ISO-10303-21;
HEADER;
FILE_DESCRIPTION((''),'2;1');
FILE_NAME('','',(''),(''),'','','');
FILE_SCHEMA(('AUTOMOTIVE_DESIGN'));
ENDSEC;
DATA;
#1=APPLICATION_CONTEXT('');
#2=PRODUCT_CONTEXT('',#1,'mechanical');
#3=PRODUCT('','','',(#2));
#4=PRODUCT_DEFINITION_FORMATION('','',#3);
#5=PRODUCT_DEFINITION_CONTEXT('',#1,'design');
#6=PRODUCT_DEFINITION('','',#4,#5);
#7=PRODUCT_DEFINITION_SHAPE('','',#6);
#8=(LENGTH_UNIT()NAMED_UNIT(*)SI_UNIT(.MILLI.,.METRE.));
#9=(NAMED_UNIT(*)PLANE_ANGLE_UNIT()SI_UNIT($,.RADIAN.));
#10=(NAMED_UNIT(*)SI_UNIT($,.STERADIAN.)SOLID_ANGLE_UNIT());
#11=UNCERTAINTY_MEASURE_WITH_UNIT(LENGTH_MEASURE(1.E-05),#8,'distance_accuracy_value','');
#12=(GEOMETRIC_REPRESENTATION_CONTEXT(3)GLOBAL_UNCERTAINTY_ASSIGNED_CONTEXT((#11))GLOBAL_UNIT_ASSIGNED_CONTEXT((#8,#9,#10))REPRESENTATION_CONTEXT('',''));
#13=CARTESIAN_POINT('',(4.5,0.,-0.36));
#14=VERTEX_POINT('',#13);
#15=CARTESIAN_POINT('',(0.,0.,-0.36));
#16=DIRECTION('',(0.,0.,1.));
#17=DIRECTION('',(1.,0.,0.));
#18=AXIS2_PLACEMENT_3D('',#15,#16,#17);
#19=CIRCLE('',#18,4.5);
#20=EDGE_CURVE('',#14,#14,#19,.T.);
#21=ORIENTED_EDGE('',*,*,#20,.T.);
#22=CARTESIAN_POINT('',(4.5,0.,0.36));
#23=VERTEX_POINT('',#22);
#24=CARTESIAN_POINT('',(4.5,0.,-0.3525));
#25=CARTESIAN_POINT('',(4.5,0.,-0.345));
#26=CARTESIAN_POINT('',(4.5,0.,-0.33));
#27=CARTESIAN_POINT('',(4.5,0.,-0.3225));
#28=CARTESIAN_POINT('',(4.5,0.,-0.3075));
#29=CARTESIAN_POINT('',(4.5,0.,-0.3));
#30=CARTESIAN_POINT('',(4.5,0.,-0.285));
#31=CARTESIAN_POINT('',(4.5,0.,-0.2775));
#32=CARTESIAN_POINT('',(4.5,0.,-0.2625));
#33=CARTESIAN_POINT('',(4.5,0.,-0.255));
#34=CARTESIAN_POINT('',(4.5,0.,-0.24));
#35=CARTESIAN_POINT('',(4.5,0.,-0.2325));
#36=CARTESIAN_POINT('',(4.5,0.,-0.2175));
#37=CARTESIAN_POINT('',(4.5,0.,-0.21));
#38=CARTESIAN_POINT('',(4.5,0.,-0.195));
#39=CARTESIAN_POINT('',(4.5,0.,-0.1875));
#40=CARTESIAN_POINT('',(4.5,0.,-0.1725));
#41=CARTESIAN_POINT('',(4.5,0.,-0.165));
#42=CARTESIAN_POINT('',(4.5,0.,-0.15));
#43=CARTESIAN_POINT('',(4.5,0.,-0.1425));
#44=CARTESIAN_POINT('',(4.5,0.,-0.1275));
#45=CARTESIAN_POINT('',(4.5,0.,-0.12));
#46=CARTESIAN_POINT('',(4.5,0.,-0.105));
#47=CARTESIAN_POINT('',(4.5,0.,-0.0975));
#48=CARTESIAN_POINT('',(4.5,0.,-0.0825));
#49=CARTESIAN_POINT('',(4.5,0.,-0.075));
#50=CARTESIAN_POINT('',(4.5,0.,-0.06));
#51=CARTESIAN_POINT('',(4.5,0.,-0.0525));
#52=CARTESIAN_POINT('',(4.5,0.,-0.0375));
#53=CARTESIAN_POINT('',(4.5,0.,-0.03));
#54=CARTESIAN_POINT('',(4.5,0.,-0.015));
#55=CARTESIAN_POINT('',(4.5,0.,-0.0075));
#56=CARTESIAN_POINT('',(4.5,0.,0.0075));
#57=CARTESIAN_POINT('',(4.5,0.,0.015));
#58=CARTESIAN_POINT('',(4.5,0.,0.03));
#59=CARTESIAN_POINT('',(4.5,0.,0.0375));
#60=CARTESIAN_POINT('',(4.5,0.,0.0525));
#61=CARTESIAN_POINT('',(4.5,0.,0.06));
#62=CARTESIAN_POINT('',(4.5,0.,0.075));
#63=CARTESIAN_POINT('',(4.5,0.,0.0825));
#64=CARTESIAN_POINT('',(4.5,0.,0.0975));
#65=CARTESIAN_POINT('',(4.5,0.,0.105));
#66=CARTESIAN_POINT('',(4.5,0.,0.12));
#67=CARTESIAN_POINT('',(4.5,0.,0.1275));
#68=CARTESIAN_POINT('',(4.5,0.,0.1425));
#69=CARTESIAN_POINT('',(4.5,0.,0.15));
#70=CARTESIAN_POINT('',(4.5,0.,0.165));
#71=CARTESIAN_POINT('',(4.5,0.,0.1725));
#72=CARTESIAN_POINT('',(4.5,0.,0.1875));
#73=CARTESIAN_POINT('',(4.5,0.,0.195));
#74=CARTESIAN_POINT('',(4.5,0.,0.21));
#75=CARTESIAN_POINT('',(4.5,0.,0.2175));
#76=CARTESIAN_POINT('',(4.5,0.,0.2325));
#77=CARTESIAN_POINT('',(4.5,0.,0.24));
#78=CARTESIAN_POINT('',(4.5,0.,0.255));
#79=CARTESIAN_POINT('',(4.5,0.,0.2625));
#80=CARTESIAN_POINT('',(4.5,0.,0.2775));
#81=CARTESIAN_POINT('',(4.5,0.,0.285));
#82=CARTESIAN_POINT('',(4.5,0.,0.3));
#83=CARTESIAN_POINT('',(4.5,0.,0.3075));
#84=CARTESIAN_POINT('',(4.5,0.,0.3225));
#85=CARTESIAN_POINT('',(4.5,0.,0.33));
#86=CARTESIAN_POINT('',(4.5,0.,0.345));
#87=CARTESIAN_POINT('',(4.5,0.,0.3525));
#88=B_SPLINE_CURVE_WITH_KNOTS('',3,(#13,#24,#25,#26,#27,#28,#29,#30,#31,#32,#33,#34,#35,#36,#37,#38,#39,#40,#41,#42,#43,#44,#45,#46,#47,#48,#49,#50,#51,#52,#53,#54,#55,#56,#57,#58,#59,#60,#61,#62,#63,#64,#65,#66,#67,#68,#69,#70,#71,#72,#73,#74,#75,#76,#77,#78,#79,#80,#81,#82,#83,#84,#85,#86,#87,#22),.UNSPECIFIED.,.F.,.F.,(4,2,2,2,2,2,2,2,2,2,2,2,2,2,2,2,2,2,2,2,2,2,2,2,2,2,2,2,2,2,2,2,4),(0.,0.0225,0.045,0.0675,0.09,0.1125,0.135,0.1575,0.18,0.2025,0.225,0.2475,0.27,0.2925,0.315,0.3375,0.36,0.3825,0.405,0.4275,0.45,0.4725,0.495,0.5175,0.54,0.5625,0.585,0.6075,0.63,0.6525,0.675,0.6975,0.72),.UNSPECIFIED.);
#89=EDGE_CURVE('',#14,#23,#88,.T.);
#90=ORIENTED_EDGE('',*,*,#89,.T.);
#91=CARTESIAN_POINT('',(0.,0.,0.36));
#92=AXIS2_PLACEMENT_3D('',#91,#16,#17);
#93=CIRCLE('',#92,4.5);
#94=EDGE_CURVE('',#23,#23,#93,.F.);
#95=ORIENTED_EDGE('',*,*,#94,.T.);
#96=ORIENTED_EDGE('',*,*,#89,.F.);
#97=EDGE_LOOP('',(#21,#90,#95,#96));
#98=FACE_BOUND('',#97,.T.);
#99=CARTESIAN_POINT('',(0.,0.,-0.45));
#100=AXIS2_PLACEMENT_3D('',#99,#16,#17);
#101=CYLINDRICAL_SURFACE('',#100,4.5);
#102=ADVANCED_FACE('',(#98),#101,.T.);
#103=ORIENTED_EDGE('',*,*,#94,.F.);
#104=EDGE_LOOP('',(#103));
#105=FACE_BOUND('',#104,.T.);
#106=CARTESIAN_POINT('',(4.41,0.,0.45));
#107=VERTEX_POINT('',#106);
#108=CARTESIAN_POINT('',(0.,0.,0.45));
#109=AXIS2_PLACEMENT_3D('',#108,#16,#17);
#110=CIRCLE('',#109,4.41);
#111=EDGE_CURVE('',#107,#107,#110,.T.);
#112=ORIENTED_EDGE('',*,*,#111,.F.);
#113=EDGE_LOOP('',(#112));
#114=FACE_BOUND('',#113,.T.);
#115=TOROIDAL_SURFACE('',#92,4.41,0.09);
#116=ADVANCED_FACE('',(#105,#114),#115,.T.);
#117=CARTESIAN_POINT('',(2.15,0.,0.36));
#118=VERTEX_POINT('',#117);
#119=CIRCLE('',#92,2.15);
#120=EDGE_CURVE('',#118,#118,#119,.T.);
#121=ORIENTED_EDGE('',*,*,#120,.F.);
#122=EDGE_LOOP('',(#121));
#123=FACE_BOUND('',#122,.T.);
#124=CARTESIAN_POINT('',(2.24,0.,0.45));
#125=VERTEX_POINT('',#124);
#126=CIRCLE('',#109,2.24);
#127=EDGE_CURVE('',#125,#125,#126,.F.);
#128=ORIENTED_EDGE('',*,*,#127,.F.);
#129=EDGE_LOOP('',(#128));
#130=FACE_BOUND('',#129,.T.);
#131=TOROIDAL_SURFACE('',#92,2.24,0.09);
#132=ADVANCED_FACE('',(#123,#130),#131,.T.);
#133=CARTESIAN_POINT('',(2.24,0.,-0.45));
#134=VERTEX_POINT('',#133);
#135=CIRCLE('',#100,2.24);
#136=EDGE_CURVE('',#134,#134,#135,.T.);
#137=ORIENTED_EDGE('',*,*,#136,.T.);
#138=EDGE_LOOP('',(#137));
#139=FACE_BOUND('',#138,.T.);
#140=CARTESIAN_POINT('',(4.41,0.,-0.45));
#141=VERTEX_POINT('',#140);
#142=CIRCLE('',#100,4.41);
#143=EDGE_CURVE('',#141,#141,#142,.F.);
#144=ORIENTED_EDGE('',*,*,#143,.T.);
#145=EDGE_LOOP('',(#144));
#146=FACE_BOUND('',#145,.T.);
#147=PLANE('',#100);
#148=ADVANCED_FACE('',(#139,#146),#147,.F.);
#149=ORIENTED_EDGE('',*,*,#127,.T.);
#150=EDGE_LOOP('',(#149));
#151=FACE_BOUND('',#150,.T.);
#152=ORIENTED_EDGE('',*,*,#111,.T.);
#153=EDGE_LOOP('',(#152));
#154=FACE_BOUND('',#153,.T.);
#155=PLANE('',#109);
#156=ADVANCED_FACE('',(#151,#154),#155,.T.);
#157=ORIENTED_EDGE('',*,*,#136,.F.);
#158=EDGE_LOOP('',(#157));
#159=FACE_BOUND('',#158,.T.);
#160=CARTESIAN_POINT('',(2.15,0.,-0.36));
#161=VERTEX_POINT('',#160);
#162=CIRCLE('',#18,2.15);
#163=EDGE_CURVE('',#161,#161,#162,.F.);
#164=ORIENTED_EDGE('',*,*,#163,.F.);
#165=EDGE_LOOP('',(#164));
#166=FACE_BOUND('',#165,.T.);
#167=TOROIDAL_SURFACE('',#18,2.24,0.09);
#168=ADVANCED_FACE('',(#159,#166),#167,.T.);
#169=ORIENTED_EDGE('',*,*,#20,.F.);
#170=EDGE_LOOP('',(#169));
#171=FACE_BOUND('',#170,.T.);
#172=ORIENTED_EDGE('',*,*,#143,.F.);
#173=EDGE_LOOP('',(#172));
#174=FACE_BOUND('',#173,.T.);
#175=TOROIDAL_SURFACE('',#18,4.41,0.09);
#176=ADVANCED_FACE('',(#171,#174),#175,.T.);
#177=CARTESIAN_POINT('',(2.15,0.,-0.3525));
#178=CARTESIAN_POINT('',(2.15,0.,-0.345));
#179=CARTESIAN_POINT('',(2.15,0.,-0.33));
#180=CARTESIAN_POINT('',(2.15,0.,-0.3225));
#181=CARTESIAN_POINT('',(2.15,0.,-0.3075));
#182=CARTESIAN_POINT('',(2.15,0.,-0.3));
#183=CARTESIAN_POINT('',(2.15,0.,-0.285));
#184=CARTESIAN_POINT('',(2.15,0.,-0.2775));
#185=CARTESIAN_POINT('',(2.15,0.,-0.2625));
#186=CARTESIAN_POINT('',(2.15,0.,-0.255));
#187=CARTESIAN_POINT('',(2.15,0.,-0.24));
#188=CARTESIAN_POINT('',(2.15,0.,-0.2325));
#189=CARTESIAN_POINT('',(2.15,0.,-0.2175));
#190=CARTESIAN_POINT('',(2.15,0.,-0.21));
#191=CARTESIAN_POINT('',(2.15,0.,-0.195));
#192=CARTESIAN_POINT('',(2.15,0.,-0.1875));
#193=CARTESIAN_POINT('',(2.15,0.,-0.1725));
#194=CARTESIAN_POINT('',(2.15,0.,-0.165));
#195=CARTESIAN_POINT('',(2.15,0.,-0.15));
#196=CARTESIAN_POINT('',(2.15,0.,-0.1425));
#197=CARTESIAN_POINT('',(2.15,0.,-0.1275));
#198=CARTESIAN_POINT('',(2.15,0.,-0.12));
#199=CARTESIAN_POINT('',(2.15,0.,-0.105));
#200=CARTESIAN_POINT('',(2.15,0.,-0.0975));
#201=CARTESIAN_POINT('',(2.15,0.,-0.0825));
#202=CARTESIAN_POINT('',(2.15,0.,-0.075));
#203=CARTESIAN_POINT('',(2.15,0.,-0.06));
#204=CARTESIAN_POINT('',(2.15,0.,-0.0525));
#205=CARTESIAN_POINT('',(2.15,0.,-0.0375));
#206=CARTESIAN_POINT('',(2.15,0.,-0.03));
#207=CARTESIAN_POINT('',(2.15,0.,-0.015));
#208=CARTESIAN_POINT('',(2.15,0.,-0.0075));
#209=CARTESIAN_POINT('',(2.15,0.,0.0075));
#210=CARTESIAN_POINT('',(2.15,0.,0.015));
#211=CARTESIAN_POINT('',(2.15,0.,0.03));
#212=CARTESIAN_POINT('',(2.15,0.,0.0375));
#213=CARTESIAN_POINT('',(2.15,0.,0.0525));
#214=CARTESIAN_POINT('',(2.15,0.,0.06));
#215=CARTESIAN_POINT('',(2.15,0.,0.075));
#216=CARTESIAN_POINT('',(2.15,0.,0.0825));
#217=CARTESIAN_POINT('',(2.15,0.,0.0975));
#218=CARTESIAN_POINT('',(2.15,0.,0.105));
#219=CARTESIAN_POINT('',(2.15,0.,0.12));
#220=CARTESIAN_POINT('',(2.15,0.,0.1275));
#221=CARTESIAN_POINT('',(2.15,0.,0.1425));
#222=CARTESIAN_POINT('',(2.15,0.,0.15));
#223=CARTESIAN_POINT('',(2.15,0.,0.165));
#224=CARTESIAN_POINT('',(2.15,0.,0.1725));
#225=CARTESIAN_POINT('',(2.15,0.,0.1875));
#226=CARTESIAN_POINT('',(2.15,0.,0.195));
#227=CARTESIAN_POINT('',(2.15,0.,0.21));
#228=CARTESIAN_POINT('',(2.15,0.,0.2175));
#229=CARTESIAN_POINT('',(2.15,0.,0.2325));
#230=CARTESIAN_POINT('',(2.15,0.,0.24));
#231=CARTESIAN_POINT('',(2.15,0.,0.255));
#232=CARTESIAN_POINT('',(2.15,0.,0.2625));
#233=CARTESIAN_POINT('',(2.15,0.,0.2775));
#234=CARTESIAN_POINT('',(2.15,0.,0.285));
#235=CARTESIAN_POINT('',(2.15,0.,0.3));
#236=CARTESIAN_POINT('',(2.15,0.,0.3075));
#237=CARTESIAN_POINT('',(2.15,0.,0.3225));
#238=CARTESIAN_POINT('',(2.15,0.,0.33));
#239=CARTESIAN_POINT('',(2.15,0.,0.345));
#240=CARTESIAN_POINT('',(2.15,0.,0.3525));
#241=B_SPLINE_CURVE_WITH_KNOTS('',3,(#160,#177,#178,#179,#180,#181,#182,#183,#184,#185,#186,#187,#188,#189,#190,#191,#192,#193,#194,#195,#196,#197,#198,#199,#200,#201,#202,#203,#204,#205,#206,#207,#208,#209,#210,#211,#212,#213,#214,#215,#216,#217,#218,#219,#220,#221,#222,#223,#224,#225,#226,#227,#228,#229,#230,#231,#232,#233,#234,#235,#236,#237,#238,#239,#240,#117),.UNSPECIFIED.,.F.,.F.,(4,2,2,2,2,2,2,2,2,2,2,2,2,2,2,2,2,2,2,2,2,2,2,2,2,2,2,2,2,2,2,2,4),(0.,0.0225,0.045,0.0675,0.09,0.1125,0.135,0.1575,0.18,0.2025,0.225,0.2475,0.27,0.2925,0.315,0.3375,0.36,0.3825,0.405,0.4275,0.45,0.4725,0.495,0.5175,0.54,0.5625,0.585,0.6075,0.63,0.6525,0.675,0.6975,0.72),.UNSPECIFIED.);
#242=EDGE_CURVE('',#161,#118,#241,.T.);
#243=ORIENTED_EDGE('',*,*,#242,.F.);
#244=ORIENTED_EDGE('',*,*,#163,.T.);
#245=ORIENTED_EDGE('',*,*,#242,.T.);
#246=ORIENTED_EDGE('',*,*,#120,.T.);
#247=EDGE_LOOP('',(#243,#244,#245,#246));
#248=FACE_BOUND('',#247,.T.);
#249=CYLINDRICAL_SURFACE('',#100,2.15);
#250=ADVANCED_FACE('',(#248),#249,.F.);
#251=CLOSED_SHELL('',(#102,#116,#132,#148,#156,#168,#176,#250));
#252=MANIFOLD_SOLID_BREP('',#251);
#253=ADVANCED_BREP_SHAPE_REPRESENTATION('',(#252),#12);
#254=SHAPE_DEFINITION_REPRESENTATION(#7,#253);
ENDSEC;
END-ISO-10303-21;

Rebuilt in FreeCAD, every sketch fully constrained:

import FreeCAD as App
import Part
import Sketcher


def edges_at(feature, points):
    """Names of the edges that pass closest to the given points."""
    edges = feature.Shape.Edges
    near = lambda p: min(range(len(edges)), key=lambda i: edges[i].distToShape(Part.Vertex(*p))[0])
    return sorted({f"Edge{near(p) + 1}" for p in points})

doc = App.newDocument("Part")
body = doc.addObject("PartDesign::Body", "Body")

# Sketch on XY plane
sketch1 = body.newObject("Sketcher::SketchObject", "Sketch")
sketch1.AttachmentSupport = (doc.getObject("XY_Plane"), [""])
sketch1.MapMode = "FlatFace"
sketch1.addGeometry([
    Part.Circle(App.Vector(0, 0, 0), App.Vector(0, 0, 1), 4.5),
    Part.Circle(App.Vector(0, 0, 0), App.Vector(0, 0, 1), 2.1),
], False)
sketch1.addConstraint([
    Sketcher.Constraint("Coincident", 0, 3, -1, 1),
    Sketcher.Constraint("Coincident", 1, 3, -1, 1),
    Sketcher.Constraint("Diameter", 0, 9.0),
    Sketcher.Constraint("Diameter", 1, 4.3),
])
pad1 = body.newObject("PartDesign::Pad", "Pad")
pad1.Profile = sketch1
pad1.Type = "TwoLengths"
pad1.Length = 0.45
pad1.Length2 = 0.45
doc.recompute()

fillet = body.newObject("PartDesign::Fillet", "Fillet")
fillet.Base = (pad1, edges_at(pad1, [
    (-4.5, 0, -0.45),
    (-2.15, 0, -0.45),
    (-4.5, 0, 0.45),
    (-2.15, 0, 0.45),
]))
fillet.Radius = 0.09

doc.recompute()
